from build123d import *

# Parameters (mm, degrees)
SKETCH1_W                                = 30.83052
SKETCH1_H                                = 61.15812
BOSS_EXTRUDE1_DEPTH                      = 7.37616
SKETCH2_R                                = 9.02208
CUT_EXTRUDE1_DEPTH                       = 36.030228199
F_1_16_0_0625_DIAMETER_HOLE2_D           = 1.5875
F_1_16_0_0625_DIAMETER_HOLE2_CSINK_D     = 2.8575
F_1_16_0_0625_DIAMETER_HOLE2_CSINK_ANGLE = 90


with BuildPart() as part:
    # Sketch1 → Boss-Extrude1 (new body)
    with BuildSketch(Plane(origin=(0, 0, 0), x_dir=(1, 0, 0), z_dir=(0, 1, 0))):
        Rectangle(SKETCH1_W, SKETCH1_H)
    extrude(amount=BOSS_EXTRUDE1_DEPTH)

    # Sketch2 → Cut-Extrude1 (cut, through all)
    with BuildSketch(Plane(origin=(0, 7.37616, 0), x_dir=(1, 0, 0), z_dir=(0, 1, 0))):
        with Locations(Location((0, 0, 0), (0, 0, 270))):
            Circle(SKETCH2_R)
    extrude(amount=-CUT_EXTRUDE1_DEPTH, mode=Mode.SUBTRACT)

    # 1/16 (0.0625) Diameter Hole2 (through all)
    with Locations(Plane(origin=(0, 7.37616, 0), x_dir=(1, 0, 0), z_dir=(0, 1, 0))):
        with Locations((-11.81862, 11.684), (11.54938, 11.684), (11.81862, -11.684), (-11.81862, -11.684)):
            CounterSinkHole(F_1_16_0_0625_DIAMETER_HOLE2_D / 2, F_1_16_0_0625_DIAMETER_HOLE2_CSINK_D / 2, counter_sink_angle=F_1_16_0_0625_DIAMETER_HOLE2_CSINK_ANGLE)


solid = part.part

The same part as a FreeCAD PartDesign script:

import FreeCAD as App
import Part
import Sketcher
from FreeCAD import Vector
Q = App.Units.Quantity


def add_polygon(sketch, points):
    """Adds a closed chain of lines whose ends are joined by coincident constraints."""
    first, n = sketch.GeometryCount, len(points)
    for a, b in zip(points, points[1:] + points[:1]):
        sketch.addGeometry(Part.LineSegment(App.Vector(*a, 0), App.Vector(*b, 0)), False)
    for i in range(n):
        sketch.addConstraint(Sketcher.Constraint("Coincident", first + i, 2, first + (i + 1) % n, 1))

doc = App.newDocument("Part")
body = doc.addObject("PartDesign::Body", "Body")

# Sketch on XZ plane
sketch1 = body.newObject("Sketcher::SketchObject", "Sketch")
sketch1.AttachmentSupport = (doc.getObject("XZ_Plane"), [""])
sketch1.MapMode = "FlatFace"
add_polygon(sketch1, [(-15, -31), (-15, 31), (15, 31), (15, -31)])  # lines 0-3
sketch1.addConstraint([
    Sketcher.Constraint("Vertical", 0),
    Sketcher.Constraint("Horizontal", 1),
    Sketcher.Constraint("Vertical", 2),
    Sketcher.Constraint("Horizontal", 3),
    Sketcher.Constraint("Symmetric", 0, 2, 2, 2, -1, 1),
    Sketcher.Constraint("DistanceX", 1, 1, 1, 2, Q("1.2138 in")),
    Sketcher.Constraint("DistanceY", 0, 1, 0, 2, Q("2.4078 in")),
])
pad1 = body.newObject("PartDesign::Pad", "Pad")
pad1.Profile = sketch1
pad1.Length = Q("0.2904 in")
pad1.Reversed = True

# Sketch on XZ plane
sketch2 = body.newObject("Sketcher::SketchObject", "Sketch001")
sketch2.AttachmentSupport = (doc.getObject("XZ_Plane"), [""])
sketch2.MapMode = "FlatFace"
sketch2.AttachmentOffset = App.Placement(Vector(0, 0, -0.2904 * 25.4), App.Rotation())
sketch2.addGeometry(Part.Circle(Vector(0, 0, 0), Vector(0, 0, 1), 9), False)
sketch2.addConstraint([
    Sketcher.Constraint("Coincident", 0, 3, -1, 1),
    Sketcher.Constraint("Diameter", 0, Q("0.7104 in")),
])
pocket1 = body.newObject("PartDesign::Pocket", "Pocket")
pocket1.Profile = sketch2
pocket1.Type = "ThroughAll"
pocket1.Reversed = True

# Sketch on XZ plane
sketch3 = body.newObject("Sketcher::SketchObject", "Sketch002")
sketch3.AttachmentSupport = (doc.getObject("XZ_Plane"), [""])
sketch3.MapMode = "FlatFace"
sketch3.AttachmentOffset = App.Placement(Vector(0, 0, -0.2904 * 25.4), App.Rotation())
sketch3.addGeometry([
    Part.Circle(Vector(-11.8, -11.7, 0), Vector(0, 0, 1), 0.8),
    Part.Circle(Vector(11.5, -11.7, 0), Vector(0, 0, 1), 0.8),
    Part.Circle(Vector(11.8, 11.7, 0), Vector(0, 0, 1), 0.8),
    Part.Circle(Vector(-11.8, 11.7, 0), Vector(0, 0, 1), 0.8),
], False)
sketch3.addConstraint([
    Sketcher.Constraint("Equal", 0, 1),
    Sketcher.Constraint("Equal", 1, 2),
    Sketcher.Constraint("Equal", 2, 3),
    Sketcher.Constraint("Symmetric", 0, 3, 2, 3, -1, 1),
    Sketcher.Constraint("Symmetric", 2, 3, 3, 3, -2),
    Sketcher.Constraint("Horizontal", 0, 3, 1, 3),
    Sketcher.Constraint("Diameter", 0, Q("0.0625 in")),
    Sketcher.Constraint("DistanceY", 0, 3, -1, 1, Q("0.46 in")),
    Sketcher.Constraint("DistanceX", 0, 3, 1, 3, Q("0.92 in")),
    Sketcher.Constraint("DistanceX", 0, 3, -1, 1, Q("0.4653 in")),
])
doc.recompute()
hole = body.newObject("PartDesign::Hole", "Hole")
hole.Profile = sketch3
hole.ThreadType = "None"
hole.Diameter = Q("0.0625 in")
hole.DepthType = "ThroughAll"
hole.HoleCutType = "Countersink"
hole.HoleCutDiameter = Q("0.1125 in")
hole.HoleCutCountersinkAngle = 90
hole.Reversed = True

doc.recompute()
